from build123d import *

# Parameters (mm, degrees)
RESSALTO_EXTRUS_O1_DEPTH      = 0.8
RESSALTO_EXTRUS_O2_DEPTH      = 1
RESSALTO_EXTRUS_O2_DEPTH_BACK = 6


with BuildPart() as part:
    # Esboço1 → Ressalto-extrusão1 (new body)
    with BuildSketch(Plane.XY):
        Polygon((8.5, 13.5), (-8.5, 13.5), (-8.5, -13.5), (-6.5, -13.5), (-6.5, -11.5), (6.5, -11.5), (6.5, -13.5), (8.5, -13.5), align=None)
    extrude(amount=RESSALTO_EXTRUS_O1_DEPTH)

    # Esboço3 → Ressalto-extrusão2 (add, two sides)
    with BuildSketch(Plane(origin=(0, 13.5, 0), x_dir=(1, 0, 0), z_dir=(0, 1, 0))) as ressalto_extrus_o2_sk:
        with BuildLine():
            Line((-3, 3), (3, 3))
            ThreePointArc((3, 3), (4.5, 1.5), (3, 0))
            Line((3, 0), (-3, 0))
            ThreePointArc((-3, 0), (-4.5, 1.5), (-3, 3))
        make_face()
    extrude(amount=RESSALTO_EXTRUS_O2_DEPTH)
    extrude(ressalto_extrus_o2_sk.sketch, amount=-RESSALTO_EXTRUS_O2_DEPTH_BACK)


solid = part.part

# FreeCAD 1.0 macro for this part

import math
import FreeCAD as App
import Part
import Sketcher
Q = App.Units.Quantity

doc = App.newDocument("Part")
params = doc.addObject("Spreadsheet::Sheet", "Params")
for row, (alias, value) in enumerate([
    ("sketch1_width", "17 mm"),
    ("sketch1_width2", "2 mm"),
    ("sketch1_height", "27 mm"),
    ("pad1_length", "0.8 mm"),
    ("sketch2_radius", "1.5 mm"),
    ("sketch2_width", "6 mm"),
    ("pad2_length", "1 mm"),
    ("pad2_length2", "6 mm"),
], start=1):
    params.set(f"A{row}", alias)
    params.set(f"B{row}", "=" + value)
    params.setAlias(f"B{row}", alias)

body = doc.addObject("PartDesign::Body", "Body")

# Sketch on XY plane
sketch1 = doc.addObject("Sketcher::SketchObject", "Sketch")
body.addObject(sketch1)
sketch1.AttachmentSupport = (doc.XY_Plane, [""])
sketch1.MapMode = "FlatFace"
sketch1.addGeometry([
    Part.LineSegment(App.Vector(8.5, 13.5, 0), App.Vector(-8.5, 13.5, 0)),  # 0
    Part.LineSegment(App.Vector(-8.5, 13.5, 0), App.Vector(-8.5, -13.5, 0)),  # 1
    Part.LineSegment(App.Vector(-8.5, -13.5, 0), App.Vector(-6.5, -13.5, 0)),  # 2
    Part.LineSegment(App.Vector(-6.5, -13.5, 0), App.Vector(-6.5, -11.5, 0)),  # 3
    Part.LineSegment(App.Vector(-6.5, -11.5, 0), App.Vector(6.5, -11.5, 0)),  # 4
    Part.LineSegment(App.Vector(6.5, -11.5, 0), App.Vector(6.5, -13.5, 0)),  # 5
    Part.LineSegment(App.Vector(6.5, -13.5, 0), App.Vector(8.5, -13.5, 0)),  # 6
    Part.LineSegment(App.Vector(8.5, -13.5, 0), App.Vector(8.5, 13.5, 0)),  # 7
], False)
sketch1.addConstraint([
    Sketcher.Constraint("Coincident", 0, 2, 1, 1),
    Sketcher.Constraint("Coincident", 1, 2, 2, 1),
    Sketcher.Constraint("Coincident", 2, 2, 3, 1),
    Sketcher.Constraint("Coincident", 3, 2, 4, 1),
    Sketcher.Constraint("Coincident", 4, 2, 5, 1),
    Sketcher.Constraint("Coincident", 5, 2, 6, 1),
    Sketcher.Constraint("Coincident", 6, 2, 7, 1),
    Sketcher.Constraint("Coincident", 7, 2, 0, 1),
    Sketcher.Constraint("Horizontal", 0),
    Sketcher.Constraint("Vertical", 1),
    Sketcher.Constraint("Horizontal", 2),
    Sketcher.Constraint("Vertical", 3),
    Sketcher.Constraint("Horizontal", 4),
    Sketcher.Constraint("Vertical", 5),
    Sketcher.Constraint("Horizontal", 6),
    Sketcher.Constraint("Vertical", 7),
    Sketcher.Constraint("Symmetric", 0, 2, 6, 2, -1, 1),
    Sketcher.Constraint("Symmetric", 2, 2, 5, 2, -2),
    Sketcher.Constraint("Equal", 6, 3),
    Sketcher.Constraint("DistanceX", 0, 2, 0, 1, Q("17 mm")),
    Sketcher.Constraint("DistanceX", 2, 1, 2, 2, Q("2 mm")),
    Sketcher.Constraint("DistanceY", 1, 2, 1, 1, Q("27 mm")),
])
sketch1.setExpression("Constraints[19]", "Params.sketch1_width")
sketch1.setExpression("Constraints[20]", "Params.sketch1_width2")
sketch1.setExpression("Constraints[21]", "Params.sketch1_height")
pad1 = doc.addObject("PartDesign::Pad", "Pad")
body.addObject(pad1)
pad1.Profile = sketch1
pad1.setExpression("Length", "Params.pad1_length")

# Sketch on XZ plane
sketch2 = doc.addObject("Sketcher::SketchObject", "Sketch001")
body.addObject(sketch2)
sketch2.AttachmentSupport = (doc.XZ_Plane, [""])
sketch2.MapMode = "FlatFace"
sketch2.AttachmentOffset = App.Placement(App.Vector(0, 0, -13.5), App.Rotation())
sketch2.addGeometry([
    Part.LineSegment(App.Vector(3, -3, 0), App.Vector(-3, -3, 0)),
    Part.ArcOfCircle(Part.Circle(App.Vector(-3, -1.5, 0), App.Vector(0, 0, 1), 1.5), math.radians(90), math.radians(270)),
    Part.LineSegment(App.Vector(-3, 0, 0), App.Vector(3, 0, 0)),
    Part.ArcOfCircle(Part.Circle(App.Vector(3, -1.5, 0), App.Vector(0, 0, 1), 1.5), math.radians(-90), math.radians(90)),
], False)
sketch2.addConstraint([
    Sketcher.Constraint("Tangent", 0, 2, 1, 2),
    Sketcher.Constraint("Tangent", 1, 1, 2, 1),
    Sketcher.Constraint("Tangent", 2, 2, 3, 2),
    Sketcher.Constraint("Tangent", 3, 1, 0, 1),
    Sketcher.Constraint("Horizontal", 0),
    Sketcher.Constraint("Horizontal", 2),
    Sketcher.Constraint("Symmetric", 1, 1, 2, 2, -1, 1),
    Sketcher.Constraint("Radius", 1, Q("1.5 mm")),
    Sketcher.Constraint("DistanceX", 0, 2, 0, 1, Q("6 mm")),
])
sketch2.setExpression("Constraints[7]", "Params.sketch2_radius")
sketch2.setExpression("Constraints[8]", "Params.sketch2_width")
pad2 = doc.addObject("PartDesign::Pad", "Pad001")
body.addObject(pad2)
pad2.Profile = sketch2
pad2.Type = "TwoLengths"
pad2.setExpression("Length", "Params.pad2_length")
pad2.setExpression("Length2", "Params.pad2_length2")
pad2.Reversed = True

doc.recompute()
